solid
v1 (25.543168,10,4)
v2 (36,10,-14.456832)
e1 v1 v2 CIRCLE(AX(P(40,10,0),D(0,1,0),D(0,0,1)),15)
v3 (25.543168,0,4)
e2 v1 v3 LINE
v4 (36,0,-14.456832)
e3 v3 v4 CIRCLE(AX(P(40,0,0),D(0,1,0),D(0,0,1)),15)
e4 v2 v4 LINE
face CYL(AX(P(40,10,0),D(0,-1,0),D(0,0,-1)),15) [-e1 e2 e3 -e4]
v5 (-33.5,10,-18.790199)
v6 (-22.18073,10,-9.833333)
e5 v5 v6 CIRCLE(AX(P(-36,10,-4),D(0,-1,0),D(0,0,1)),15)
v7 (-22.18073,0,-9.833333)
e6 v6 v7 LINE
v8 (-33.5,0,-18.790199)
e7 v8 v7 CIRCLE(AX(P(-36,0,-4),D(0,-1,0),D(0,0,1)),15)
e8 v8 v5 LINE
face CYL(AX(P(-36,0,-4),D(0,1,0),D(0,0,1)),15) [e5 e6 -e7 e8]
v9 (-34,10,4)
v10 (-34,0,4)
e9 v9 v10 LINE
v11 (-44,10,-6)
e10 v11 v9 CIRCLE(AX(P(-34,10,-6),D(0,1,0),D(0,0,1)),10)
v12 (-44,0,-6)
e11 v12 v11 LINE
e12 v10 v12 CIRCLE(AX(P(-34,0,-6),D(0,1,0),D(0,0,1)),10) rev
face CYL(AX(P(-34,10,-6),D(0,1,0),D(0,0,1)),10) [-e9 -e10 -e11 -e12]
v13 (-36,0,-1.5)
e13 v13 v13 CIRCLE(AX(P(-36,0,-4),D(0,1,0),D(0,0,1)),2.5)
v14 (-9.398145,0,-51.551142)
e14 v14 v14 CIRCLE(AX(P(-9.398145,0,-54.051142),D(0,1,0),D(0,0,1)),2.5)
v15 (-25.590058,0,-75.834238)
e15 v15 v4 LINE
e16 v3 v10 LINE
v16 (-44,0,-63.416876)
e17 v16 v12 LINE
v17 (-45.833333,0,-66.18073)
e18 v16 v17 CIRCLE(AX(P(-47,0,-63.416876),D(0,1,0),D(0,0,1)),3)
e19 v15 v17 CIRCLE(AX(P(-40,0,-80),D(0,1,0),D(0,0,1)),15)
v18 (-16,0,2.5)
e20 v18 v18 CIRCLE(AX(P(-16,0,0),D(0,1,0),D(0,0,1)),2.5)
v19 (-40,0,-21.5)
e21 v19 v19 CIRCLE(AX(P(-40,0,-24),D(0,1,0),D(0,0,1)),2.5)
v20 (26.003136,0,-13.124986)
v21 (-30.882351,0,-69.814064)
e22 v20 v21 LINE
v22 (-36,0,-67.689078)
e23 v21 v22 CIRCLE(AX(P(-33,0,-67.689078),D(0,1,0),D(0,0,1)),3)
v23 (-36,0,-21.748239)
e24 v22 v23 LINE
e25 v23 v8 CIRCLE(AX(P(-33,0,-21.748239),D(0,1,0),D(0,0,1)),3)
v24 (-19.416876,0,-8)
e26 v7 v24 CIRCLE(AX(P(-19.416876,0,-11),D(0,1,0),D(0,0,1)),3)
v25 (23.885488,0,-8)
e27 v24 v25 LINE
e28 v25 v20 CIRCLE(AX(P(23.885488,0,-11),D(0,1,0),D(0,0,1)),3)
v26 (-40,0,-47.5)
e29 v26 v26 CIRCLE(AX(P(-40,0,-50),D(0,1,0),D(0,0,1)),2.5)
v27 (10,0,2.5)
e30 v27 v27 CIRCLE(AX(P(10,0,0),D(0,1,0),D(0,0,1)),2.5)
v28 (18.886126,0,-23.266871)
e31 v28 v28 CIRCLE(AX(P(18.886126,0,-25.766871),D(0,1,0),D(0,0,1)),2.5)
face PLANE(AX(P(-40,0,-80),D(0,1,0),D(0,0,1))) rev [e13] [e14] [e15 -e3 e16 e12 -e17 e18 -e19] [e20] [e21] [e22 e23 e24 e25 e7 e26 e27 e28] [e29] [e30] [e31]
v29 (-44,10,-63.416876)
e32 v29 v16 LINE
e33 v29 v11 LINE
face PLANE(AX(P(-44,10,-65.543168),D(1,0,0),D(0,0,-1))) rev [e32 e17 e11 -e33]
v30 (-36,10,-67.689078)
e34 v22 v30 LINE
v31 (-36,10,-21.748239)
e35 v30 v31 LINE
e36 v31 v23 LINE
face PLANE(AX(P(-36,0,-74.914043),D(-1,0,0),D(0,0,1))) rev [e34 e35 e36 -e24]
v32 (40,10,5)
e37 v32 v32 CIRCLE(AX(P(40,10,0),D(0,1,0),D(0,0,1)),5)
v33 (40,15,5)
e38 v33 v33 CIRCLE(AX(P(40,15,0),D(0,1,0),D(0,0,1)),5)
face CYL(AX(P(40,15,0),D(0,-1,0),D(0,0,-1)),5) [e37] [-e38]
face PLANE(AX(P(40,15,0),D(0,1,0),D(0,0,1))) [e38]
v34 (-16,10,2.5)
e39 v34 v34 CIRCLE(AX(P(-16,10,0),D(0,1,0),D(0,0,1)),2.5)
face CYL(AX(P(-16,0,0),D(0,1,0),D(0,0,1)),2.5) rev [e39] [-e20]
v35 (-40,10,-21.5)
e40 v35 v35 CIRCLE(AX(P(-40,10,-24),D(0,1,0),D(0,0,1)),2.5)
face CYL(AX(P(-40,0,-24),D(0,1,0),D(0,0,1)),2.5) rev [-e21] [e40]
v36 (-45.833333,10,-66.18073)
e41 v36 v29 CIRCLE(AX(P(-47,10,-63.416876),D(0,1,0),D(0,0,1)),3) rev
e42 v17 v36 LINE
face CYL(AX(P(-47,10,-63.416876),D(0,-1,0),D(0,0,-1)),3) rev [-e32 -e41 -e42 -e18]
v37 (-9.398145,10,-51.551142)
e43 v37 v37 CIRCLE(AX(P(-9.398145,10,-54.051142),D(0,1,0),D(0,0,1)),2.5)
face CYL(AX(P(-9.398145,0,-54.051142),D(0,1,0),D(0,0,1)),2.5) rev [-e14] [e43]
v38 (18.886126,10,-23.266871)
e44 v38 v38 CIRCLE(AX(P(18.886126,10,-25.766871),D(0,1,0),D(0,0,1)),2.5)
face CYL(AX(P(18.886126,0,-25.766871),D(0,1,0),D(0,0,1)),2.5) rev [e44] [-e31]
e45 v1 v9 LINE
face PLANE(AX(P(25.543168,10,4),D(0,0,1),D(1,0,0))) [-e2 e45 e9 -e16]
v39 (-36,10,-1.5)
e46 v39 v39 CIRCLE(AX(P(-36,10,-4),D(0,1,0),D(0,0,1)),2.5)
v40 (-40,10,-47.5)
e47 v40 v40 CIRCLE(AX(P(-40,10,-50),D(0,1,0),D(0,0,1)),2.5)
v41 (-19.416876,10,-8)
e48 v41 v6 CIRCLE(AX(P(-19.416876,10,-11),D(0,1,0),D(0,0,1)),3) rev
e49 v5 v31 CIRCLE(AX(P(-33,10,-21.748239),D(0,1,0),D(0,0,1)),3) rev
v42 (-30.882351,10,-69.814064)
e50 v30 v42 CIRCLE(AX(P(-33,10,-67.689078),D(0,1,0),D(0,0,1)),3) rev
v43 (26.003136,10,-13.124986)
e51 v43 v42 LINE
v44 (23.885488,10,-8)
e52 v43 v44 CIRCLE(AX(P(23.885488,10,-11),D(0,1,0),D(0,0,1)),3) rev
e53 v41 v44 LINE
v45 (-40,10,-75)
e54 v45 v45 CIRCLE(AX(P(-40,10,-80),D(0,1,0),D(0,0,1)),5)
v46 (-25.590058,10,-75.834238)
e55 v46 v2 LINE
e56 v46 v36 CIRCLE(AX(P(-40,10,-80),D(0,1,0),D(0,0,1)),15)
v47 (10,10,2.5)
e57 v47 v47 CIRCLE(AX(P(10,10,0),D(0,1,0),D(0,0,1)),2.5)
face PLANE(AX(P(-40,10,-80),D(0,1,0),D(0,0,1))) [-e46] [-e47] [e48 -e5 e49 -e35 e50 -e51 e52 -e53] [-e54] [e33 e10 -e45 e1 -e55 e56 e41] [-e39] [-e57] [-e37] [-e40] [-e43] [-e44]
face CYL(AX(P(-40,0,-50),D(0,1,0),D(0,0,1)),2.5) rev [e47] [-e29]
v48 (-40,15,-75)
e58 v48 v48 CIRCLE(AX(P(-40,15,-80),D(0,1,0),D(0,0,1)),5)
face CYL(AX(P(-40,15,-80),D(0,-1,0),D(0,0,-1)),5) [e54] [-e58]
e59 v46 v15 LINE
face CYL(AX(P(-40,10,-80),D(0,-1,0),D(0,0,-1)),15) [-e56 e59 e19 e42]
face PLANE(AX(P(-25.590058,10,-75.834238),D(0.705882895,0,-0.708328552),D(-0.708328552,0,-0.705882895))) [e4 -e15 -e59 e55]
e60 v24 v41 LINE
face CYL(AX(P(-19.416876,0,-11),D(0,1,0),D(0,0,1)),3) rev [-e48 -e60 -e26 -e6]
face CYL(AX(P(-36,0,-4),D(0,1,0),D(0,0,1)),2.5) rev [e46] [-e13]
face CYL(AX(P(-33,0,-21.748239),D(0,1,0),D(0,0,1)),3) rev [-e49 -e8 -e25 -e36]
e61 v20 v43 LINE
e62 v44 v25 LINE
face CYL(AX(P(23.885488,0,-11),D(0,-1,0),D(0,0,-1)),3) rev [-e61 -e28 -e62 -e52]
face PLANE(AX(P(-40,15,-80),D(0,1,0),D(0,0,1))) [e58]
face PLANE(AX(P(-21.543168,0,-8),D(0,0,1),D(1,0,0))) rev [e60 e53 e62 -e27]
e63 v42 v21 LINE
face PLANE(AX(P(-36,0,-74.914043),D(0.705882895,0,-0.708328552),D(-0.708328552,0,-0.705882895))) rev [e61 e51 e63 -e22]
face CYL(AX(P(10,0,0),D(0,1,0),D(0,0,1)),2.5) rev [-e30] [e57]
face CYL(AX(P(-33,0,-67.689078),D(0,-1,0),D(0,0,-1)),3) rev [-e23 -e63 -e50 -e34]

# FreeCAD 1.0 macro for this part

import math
import FreeCAD as App
import Part
import Sketcher

V = App.Vector


def edges_at(feature, points):
    """Names of the edges that pass closest to the given points."""
    edges = feature.Shape.Edges
    near = lambda p: min(range(len(edges)), key=lambda i: edges[i].distToShape(Part.Vertex(*p))[0])
    return sorted({f"Edge{near(p) + 1}" for p in points})

doc = App.newDocument("Part")
body = doc.addObject("PartDesign::Body", "Body")

# Sketch on XZ plane
sketch1 = body.newObject("Sketcher::SketchObject", "Sketch")
sketch1.AttachmentSupport = (doc.getObject("XZ_Plane"), [""])
sketch1.MapMode = "FlatFace"
sketch1.addGeometry([
    Part.LineSegment(V(36, -14, 0), V(-26, -76, 0)),  # 0
    Part.ArcOfCircle(Part.Circle(V(-40, -80, 0), V(0, 0, 1), 15), math.radians(105), math.radians(376)),  # 1
    Part.LineSegment(V(-44, -66, 0), V(-44, 4, 0)),  # 2
    Part.LineSegment(V(-44, 4, 0), V(26, 4, 0)),  # 3
    Part.ArcOfCircle(Part.Circle(V(40, 0, 0), V(0, 0, 1), 15), math.radians(-105), math.radians(165)),  # 4
], False)
sketch1.addConstraint([
    Sketcher.Constraint("Coincident", 0, 2, 1, 2),
    Sketcher.Constraint("Coincident", 1, 1, 2, 1),
    Sketcher.Constraint("Coincident", 2, 2, 3, 1),
    Sketcher.Constraint("Coincident", 3, 2, 4, 2),
    Sketcher.Constraint("Coincident", 4, 1, 0, 1),
    Sketcher.Constraint("Vertical", 2),
    Sketcher.Constraint("Horizontal", 3),
    Sketcher.Constraint("Equal", 1, 4),
    Sketcher.Constraint("PointOnObject", 4, 3, -1),
    Sketcher.Constraint("Equal", 3, 2),
    Sketcher.Constraint("Radius", 1, 15.0),
    Sketcher.Constraint("DistanceX", 1, 3, -1, 1, 40.0),
    Sketcher.Constraint("DistanceY", 1, 3, -1, 1, 80.0),
    Sketcher.Constraint("DistanceX", -1, 1, 4, 3, 40.0),
    Sketcher.Constraint("DistanceX", 1, 1, -1, 1, 44.0),
    Sketcher.Constraint("DistanceX", -1, 1, 4, 1, 36.0),
    Sketcher.Constraint("DistanceX", 0, 2, -1, 1, 25.590058),
])
pad1 = body.newObject("PartDesign::Pad", "Pad")
pad1.Profile = sketch1
pad1.Length = 10
pad1.Reversed = True

# Sketch on XZ plane
sketch2 = body.newObject("Sketcher::SketchObject", "Sketch001")
sketch2.AttachmentSupport = (doc.getObject("XZ_Plane"), [""])
sketch2.MapMode = "FlatFace"
sketch2.AttachmentOffset = App.Placement(V(0, 0, -10), App.Rotation())
sketch2.addGeometry(Part.Circle(V(-40, -80, 0), V(0, 0, 1), 5), False)
sketch2.addConstraint([
    Sketcher.Constraint("Diameter", 0, 10.0),
    Sketcher.Constraint("DistanceX", 0, 3, -1, 1, 40.0),
    Sketcher.Constraint("DistanceY", 0, 3, -1, 1, 80.0),
])
pad2 = body.newObject("PartDesign::Pad", "Pad001")
pad2.Profile = sketch2
pad2.Length = 5
pad2.Reversed = True

# Sketch on XZ plane
sketch3 = body.newObject("Sketcher::SketchObject", "Sketch002")
sketch3.AttachmentSupport = (doc.getObject("XZ_Plane"), [""])
sketch3.MapMode = "FlatFace"
sketch3.AttachmentOffset = App.Placement(V(0, 0, -10), App.Rotation())
sketch3.addGeometry(Part.Circle(V(40, 0, 0), V(0, 0, 1), 5), False)
sketch3.addConstraint([
    Sketcher.Constraint("PointOnObject", 0, 3, -1),
    Sketcher.Constraint("Diameter", 0, 10.0),
    Sketcher.Constraint("DistanceX", -1, 1, 0, 3, 40.0),
])
pad3 = body.newObject("PartDesign::Pad", "Pad002")
pad3.Profile = sketch3
pad3.Length = 5
pad3.Reversed = True

# Sketch on XZ plane
sketch4 = body.newObject("Sketcher::SketchObject", "Sketch003")
sketch4.AttachmentSupport = (doc.getObject("XZ_Plane"), [""])
sketch4.MapMode = "FlatFace"
sketch4.AttachmentOffset = App.Placement(V(0, 0, -10), App.Rotation())
sketch4.addGeometry(Part.Circle(V(-40, -50, 0), V(0, 0, 1), 2.5), False)
sketch4.addConstraint([
    Sketcher.Constraint("Diameter", 0, 5.0),
    Sketcher.Constraint("DistanceX", 0, 3, -1, 1, 40.0),
    Sketcher.Constraint("DistanceY", 0, 3, -1, 1, 50.0),
])
pocket1 = body.newObject("PartDesign::Pocket", "Pocket")
pocket1.Profile = sketch4
pocket1.Type = "ThroughAll"
pocket1.Reversed = True

# Sketch on XZ plane
sketch5 = body.newObject("Sketcher::SketchObject", "Sketch004")
sketch5.AttachmentSupport = (doc.getObject("XZ_Plane"), [""])
sketch5.MapMode = "FlatFace"
sketch5.AttachmentOffset = App.Placement(V(0, 0, -10), App.Rotation())
sketch5.addGeometry(Part.Circle(V(-40, -24, 0), V(0, 0, 1), 2.5), False)
sketch5.addConstraint([
    Sketcher.Constraint("Diameter", 0, 5.0),
    Sketcher.Constraint("DistanceX", 0, 3, -1, 1, 40.0),
    Sketcher.Constraint("DistanceY", 0, 3, -1, 1, 24.0),
])
pocket2 = body.newObject("PartDesign::Pocket", "Pocket001")
pocket2.Profile = sketch5
pocket2.Type = "ThroughAll"
pocket2.Reversed = True

# Sketch on XZ plane
sketch6 = body.newObject("Sketcher::SketchObject", "Sketch005")
sketch6.AttachmentSupport = (doc.getObject("XZ_Plane"), [""])
sketch6.MapMode = "FlatFace"
sketch6.AttachmentOffset = App.Placement(V(0, 0, -10), App.Rotation())
sketch6.addGeometry(Part.Circle(V(10, 0, 0), V(0, 0, 1), 2.5), False)
sketch6.addConstraint([
    Sketcher.Constraint("PointOnObject", 0, 3, -1),
    Sketcher.Constraint("Diameter", 0, 5.0),
    Sketcher.Constraint("DistanceX", -1, 1, 0, 3, 10.0),
])
pocket3 = body.newObject("PartDesign::Pocket", "Pocket002")
pocket3.Profile = sketch6
pocket3.Type = "ThroughAll"
pocket3.Reversed = True

# Sketch on XZ plane
sketch7 = body.newObject("Sketcher::SketchObject", "Sketch006")
sketch7.AttachmentSupport = (doc.getObject("XZ_Plane"), [""])
sketch7.MapMode = "FlatFace"
sketch7.AttachmentOffset = App.Placement(V(0, 0, -10), App.Rotation())
sketch7.addGeometry(Part.Circle(V(-16, 0, 0), V(0, 0, 1), 2.5), False)
sketch7.addConstraint([
    Sketcher.Constraint("PointOnObject", 0, 3, -1),
    Sketcher.Constraint("Diameter", 0, 5.0),
    Sketcher.Constraint("DistanceX", 0, 3, -1, 1, 16.0),
])
pocket4 = body.newObject("PartDesign::Pocket", "Pocket003")
pocket4.Profile = sketch7
pocket4.Type = "ThroughAll"
pocket4.Reversed = True

# Sketch on XZ plane
sketch8 = body.newObject("Sketcher::SketchObject", "Sketch007")
sketch8.AttachmentSupport = (doc.getObject("XZ_Plane"), [""])
sketch8.MapMode = "FlatFace"
sketch8.AttachmentOffset = App.Placement(V(0, 0, -10), App.Rotation())
sketch8.addGeometry(Part.Circle(V(-36, -4, 0), V(0, 0, 1), 2.5), False)
sketch8.addConstraint([
    Sketcher.Constraint("Diameter", 0, 5.0),
    Sketcher.Constraint("DistanceX", 0, 3, -1, 1, 36.0),
    Sketcher.Constraint("DistanceY", 0, 3, -1, 1, 4.0),
])
pocket5 = body.newObject("PartDesign::Pocket", "Pocket004")
pocket5.Profile = sketch8
pocket5.Type = "ThroughAll"
pocket5.Reversed = True

# Sketch on XZ plane
sketch9 = body.newObject("Sketcher::SketchObject", "Sketch008")
sketch9.AttachmentSupport = (doc.getObject("XZ_Plane"), [""])
sketch9.MapMode = "FlatFace"
sketch9.AttachmentOffset = App.Placement(V(0, 0, -10), App.Rotation())
sketch9.addGeometry([
    Part.LineSegment(V(31, -8, 0), V(-36, -75, 0)),
    Part.LineSegment(V(-36, -75, 0), V(-36, -19, 0)),
    Part.ArcOfCircle(Part.Circle(V(-36, -4, 0), V(0, 0, 1), 15), math.radians(-90), math.radians(-15)),
    Part.LineSegment(V(-22, -8, 0), V(31, -8, 0)),
], False)
sketch9.addConstraint([
    Sketcher.Constraint("Coincident", 0, 2, 1, 1),
    Sketcher.Constraint("Coincident", 1, 2, 2, 1),
    Sketcher.Constraint("Coincident", 2, 2, 3, 1),
    Sketcher.Constraint("Coincident", 3, 2, 0, 1),
    Sketcher.Constraint("Vertical", 1),
    Sketcher.Constraint("Horizontal", 3),
    Sketcher.Constraint("Vertical", 2, 3, 0, 2),
    Sketcher.Constraint("Radius", 2, 15.0),
    Sketcher.Constraint("DistanceX", 2, 3, -1, 1, 36.0),
    Sketcher.Constraint("DistanceY", 2, 3, -1, 1, 4.0),
    Sketcher.Constraint("DistanceY", 2, 2, -1, 1, 8.0),
    Sketcher.Constraint("Distance", 0, 94.794821),
    Sketcher.Constraint("DistanceX", 3, 1, 3, 2, 52.689046),
])
pocket6 = body.newObject("PartDesign::Pocket", "Pocket005")
pocket6.Profile = sketch9
pocket6.Type = "ThroughAll"
pocket6.Reversed = True
doc.recompute()

fillet = body.newObject("PartDesign::Fillet", "Fillet")
fillet.Base = (pocket6, edges_at(pocket6, [(-44, 5, -65.543)]))
fillet.Radius = 3

# Sketch on XZ plane
sketch10 = body.newObject("Sketcher::SketchObject", "Sketch009")
sketch10.AttachmentSupport = (doc.getObject("XZ_Plane"), [""])
sketch10.MapMode = "FlatFace"
sketch10.AttachmentOffset = App.Placement(V(0, 0, -10), App.Rotation())
sketch10.addGeometry(Part.Circle(V(-9.4, -54.1, 0), V(0, 0, 1), 2.5), False)
sketch10.addConstraint([
    Sketcher.Constraint("Diameter", 0, 5.0),
    Sketcher.Constraint("DistanceY", 0, 3, -1, 1, 54.051142),
    Sketcher.Constraint("DistanceX", 0, 3, -1, 1, 9.398145),
])
pocket7 = body.newObject("PartDesign::Pocket", "Pocket006")
pocket7.Profile = sketch10
pocket7.Type = "ThroughAll"
pocket7.Reversed = True

# Sketch on XZ plane
sketch11 = body.newObject("Sketcher::SketchObject", "Sketch010")
sketch11.AttachmentSupport = (doc.getObject("XZ_Plane"), [""])
sketch11.MapMode = "FlatFace"
sketch11.AttachmentOffset = App.Placement(V(0, 0, -10), App.Rotation())
sketch11.addGeometry(Part.Circle(V(18.9, -25.8, 0), V(0, 0, 1), 2.5), False)
sketch11.addConstraint([
    Sketcher.Constraint("Diameter", 0, 5.0),
    Sketcher.Constraint("DistanceY", 0, 3, -1, 1, 25.766871),
    Sketcher.Constraint("DistanceX", -1, 1, 0, 3, 18.886126),
])
pocket8 = body.newObject("PartDesign::Pocket", "Pocket007")
pocket8.Profile = sketch11
pocket8.Type = "ThroughAll"
pocket8.Reversed = True
doc.recompute()

fillet2 = body.newObject("PartDesign::Fillet", "Fillet001")
fillet2.Base = (pocket8, edges_at(pocket8, [(-36, 5, -74.914)]))
fillet2.Radius = 3
doc.recompute()

fillet3 = body.newObject("PartDesign::Fillet", "Fillet002")
fillet3.Base = (fillet2, edges_at(fillet2, [(31.146, 5, -8)]))
fillet3.Radius = 3
doc.recompute()

fillet4 = body.newObject("PartDesign::Fillet", "Fillet003")
fillet4.Base = (fillet3, edges_at(fillet3, [(-36, 5, -19)]))
fillet4.Radius = 3
doc.recompute()

fillet5 = body.newObject("PartDesign::Fillet", "Fillet004")
fillet5.Base = (fillet4, edges_at(fillet4, [(-21.543, 5, -8)]))
fillet5.Radius = 3
doc.recompute()

fillet6 = body.newObject("PartDesign::Fillet", "Fillet005")
fillet6.Base = (fillet5, edges_at(fillet5, [(-44, 5, 4)]))
fillet6.Radius = 10

doc.recompute()
